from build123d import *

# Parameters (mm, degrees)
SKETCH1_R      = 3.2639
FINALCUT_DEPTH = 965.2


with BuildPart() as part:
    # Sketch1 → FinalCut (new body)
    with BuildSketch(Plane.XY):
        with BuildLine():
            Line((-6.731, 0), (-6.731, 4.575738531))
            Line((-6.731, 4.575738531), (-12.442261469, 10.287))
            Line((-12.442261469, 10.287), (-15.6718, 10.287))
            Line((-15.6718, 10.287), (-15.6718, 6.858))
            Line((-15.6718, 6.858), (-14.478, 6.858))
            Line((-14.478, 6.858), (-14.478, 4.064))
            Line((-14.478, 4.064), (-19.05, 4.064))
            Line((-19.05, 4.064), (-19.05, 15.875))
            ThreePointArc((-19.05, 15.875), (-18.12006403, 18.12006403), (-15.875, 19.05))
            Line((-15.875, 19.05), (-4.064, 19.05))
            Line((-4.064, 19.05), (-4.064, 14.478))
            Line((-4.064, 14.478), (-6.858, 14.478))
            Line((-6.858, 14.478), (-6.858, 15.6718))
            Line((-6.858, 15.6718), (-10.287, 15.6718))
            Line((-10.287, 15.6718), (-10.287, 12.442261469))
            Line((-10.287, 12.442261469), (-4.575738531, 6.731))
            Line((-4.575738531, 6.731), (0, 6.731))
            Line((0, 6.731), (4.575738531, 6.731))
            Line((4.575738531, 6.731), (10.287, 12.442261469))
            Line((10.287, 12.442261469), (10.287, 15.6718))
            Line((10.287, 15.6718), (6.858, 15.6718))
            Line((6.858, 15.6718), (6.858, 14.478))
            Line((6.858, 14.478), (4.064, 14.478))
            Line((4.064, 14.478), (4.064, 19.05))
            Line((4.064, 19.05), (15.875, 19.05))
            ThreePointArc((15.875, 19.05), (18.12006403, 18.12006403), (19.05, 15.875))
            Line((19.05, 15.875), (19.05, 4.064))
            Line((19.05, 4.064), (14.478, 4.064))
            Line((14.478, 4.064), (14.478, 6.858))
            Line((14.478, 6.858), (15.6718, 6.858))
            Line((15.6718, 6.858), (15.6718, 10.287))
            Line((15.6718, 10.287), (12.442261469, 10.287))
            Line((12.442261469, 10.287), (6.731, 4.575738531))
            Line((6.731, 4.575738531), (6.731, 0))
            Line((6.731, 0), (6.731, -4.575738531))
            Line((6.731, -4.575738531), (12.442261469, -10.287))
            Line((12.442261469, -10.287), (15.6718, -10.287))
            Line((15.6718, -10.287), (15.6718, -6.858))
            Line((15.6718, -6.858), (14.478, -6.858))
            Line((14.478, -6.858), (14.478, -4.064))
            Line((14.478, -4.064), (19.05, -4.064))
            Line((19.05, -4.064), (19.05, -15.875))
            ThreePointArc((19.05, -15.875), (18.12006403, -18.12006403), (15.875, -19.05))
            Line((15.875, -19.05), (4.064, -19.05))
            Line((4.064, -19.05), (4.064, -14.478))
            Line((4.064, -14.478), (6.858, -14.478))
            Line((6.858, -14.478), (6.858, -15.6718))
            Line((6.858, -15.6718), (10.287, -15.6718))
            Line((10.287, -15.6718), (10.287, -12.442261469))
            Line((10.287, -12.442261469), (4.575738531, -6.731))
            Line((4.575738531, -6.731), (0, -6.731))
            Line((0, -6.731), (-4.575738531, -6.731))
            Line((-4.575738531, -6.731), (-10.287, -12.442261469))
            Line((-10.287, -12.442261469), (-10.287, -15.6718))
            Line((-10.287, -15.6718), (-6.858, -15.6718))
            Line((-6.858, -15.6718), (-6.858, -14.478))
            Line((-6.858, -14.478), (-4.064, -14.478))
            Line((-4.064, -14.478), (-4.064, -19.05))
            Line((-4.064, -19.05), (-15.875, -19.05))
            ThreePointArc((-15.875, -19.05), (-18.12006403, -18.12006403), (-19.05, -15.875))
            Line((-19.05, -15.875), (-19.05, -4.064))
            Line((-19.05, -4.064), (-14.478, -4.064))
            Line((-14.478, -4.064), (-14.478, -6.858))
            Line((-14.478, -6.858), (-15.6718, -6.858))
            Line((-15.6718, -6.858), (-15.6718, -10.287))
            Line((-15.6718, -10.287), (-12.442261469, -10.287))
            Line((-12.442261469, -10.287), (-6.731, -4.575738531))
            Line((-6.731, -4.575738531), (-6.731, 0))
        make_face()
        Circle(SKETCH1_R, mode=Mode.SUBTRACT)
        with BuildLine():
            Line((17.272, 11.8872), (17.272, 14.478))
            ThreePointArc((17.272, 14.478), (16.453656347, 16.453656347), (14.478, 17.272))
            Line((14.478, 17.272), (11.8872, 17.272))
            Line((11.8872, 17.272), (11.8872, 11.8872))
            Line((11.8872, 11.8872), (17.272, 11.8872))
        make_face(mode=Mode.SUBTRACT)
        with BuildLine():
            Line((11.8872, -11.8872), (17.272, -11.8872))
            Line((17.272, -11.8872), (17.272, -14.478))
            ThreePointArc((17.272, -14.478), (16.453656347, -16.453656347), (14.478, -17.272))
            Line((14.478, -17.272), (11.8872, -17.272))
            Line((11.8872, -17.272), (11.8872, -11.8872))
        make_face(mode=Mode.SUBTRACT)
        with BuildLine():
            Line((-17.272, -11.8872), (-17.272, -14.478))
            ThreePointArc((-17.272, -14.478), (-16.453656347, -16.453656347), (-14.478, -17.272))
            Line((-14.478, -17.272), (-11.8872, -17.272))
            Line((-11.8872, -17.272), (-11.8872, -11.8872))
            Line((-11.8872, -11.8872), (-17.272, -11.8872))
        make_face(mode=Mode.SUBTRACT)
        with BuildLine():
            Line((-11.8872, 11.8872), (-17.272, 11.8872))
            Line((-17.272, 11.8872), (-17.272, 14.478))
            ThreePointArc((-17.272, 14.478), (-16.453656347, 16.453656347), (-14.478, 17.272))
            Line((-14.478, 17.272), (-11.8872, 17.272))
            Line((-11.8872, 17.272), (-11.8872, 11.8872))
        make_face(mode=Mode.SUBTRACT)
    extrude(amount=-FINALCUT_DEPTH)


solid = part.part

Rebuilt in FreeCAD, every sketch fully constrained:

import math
import FreeCAD as App
import Part
import Sketcher

V = App.Vector
Q = App.Units.Quantity

doc = App.newDocument("Part")
body = doc.addObject("PartDesign::Body", "Body")

# Sketch on XY plane
sketch1 = body.newObject("Sketcher::SketchObject", "Sketch")
sketch1.AttachmentSupport = (doc.getObject("XY_Plane"), [""])
sketch1.MapMode = "FlatFace"
sketch1.addGeometry([
    Part.LineSegment(V(-12.4, 10.3, 0), V(-6.7, 4.6, 0)),  # 0
    Part.LineSegment(V(-6.7, 4.6, 0), V(-6.7, -4.6, 0)),  # 1
    Part.LineSegment(V(-6.7, -4.6, 0), V(-12.4, -10.3, 0)),  # 2
    Part.LineSegment(V(-12.4, -10.3, 0), V(-15.7, -10.3, 0)),  # 3
    Part.LineSegment(V(-15.7, -10.3, 0), V(-15.7, -6.9, 0)),  # 4
    Part.LineSegment(V(-15.7, -6.9, 0), V(-14.5, -6.9, 0)),  # 5
    Part.LineSegment(V(-14.5, -6.9, 0), V(-14.5, -4.1, 0)),  # 6
    Part.LineSegment(V(-14.5, -4.1, 0), V(-19.1, -4.1, 0)),  # 7
    Part.LineSegment(V(-19.1, -4.1, 0), V(-19.1, -15.9, 0)),  # 8
    Part.ArcOfCircle(Part.Circle(V(-15.9, -15.9, 0), V(0, 0, 1), 3.2), math.radians(-180), math.radians(-90)),  # 9
    Part.LineSegment(V(-15.9, -19.1, 0), V(-4.1, -19.1, 0)),  # 10
    Part.LineSegment(V(-4.1, -19.1, 0), V(-4.1, -14.5, 0)),  # 11
    Part.LineSegment(V(-4.1, -14.5, 0), V(-6.9, -14.5, 0)),  # 12
    Part.LineSegment(V(-6.9, -14.5, 0), V(-6.9, -15.7, 0)),  # 13
    Part.LineSegment(V(-6.9, -15.7, 0), V(-10.3, -15.7, 0)),  # 14
    Part.LineSegment(V(-10.3, -15.7, 0), V(-10.3, -12.4, 0)),  # 15
    Part.LineSegment(V(-10.3, -12.4, 0), V(-4.6, -6.7, 0)),  # 16
    Part.LineSegment(V(-4.6, -6.7, 0), V(4.6, -6.7, 0)),  # 17
    Part.LineSegment(V(4.6, -6.7, 0), V(10.3, -12.4, 0)),  # 18
    Part.LineSegment(V(10.3, -12.4, 0), V(10.3, -15.7, 0)),  # 19
    Part.LineSegment(V(10.3, -15.7, 0), V(6.9, -15.7, 0)),  # 20
    Part.LineSegment(V(6.9, -15.7, 0), V(6.9, -14.5, 0)),  # 21
    Part.LineSegment(V(6.9, -14.5, 0), V(4.1, -14.5, 0)),  # 22
    Part.LineSegment(V(4.1, -14.5, 0), V(4.1, -19.1, 0)),  # 23
    Part.LineSegment(V(4.1, -19.1, 0), V(15.9, -19.1, 0)),  # 24
    Part.ArcOfCircle(Part.Circle(V(15.9, -15.9, 0), V(0, 0, 1), 3.2), math.radians(-90), math.radians(0)),  # 25
    Part.LineSegment(V(19.1, -15.9, 0), V(19.1, -4.1, 0)),  # 26
    Part.LineSegment(V(19.1, -4.1, 0), V(14.5, -4.1, 0)),  # 27
    Part.LineSegment(V(14.5, -4.1, 0), V(14.5, -6.9, 0)),  # 28
    Part.LineSegment(V(14.5, -6.9, 0), V(15.7, -6.9, 0)),  # 29
    Part.LineSegment(V(15.7, -6.9, 0), V(15.7, -10.3, 0)),  # 30
    Part.LineSegment(V(15.7, -10.3, 0), V(12.4, -10.3, 0)),  # 31
    Part.LineSegment(V(12.4, -10.3, 0), V(6.7, -4.6, 0)),  # 32
    Part.LineSegment(V(6.7, -4.6, 0), V(6.7, 4.6, 0)),  # 33
    Part.LineSegment(V(6.7, 4.6, 0), V(12.4, 10.3, 0)),  # 34
    Part.LineSegment(V(12.4, 10.3, 0), V(15.7, 10.3, 0)),  # 35
    Part.LineSegment(V(15.7, 10.3, 0), V(15.7, 6.9, 0)),  # 36
    Part.LineSegment(V(15.7, 6.9, 0), V(14.5, 6.9, 0)),  # 37
    Part.LineSegment(V(14.5, 6.9, 0), V(14.5, 4.1, 0)),  # 38
    Part.LineSegment(V(14.5, 4.1, 0), V(19.1, 4.1, 0)),  # 39
    Part.LineSegment(V(19.1, 4.1, 0), V(19.1, 15.9, 0)),  # 40
    Part.ArcOfCircle(Part.Circle(V(15.9, 15.9, 0), V(0, 0, 1), 3.2), math.radians(0), math.radians(90)),  # 41
    Part.LineSegment(V(15.9, 19.1, 0), V(4.1, 19.1, 0)),  # 42
    Part.LineSegment(V(4.1, 19.1, 0), V(4.1, 14.5, 0)),  # 43
    Part.LineSegment(V(4.1, 14.5, 0), V(6.9, 14.5, 0)),  # 44
    Part.LineSegment(V(6.9, 14.5, 0), V(6.9, 15.7, 0)),  # 45
    Part.LineSegment(V(6.9, 15.7, 0), V(10.3, 15.7, 0)),  # 46
    Part.LineSegment(V(10.3, 15.7, 0), V(10.3, 12.4, 0)),  # 47
    Part.LineSegment(V(10.3, 12.4, 0), V(4.6, 6.7, 0)),  # 48
    Part.LineSegment(V(4.6, 6.7, 0), V(-4.6, 6.7, 0)),  # 49
    Part.LineSegment(V(-4.6, 6.7, 0), V(-10.3, 12.4, 0)),  # 50
    Part.LineSegment(V(-10.3, 12.4, 0), V(-10.3, 15.7, 0)),  # 51
    Part.LineSegment(V(-10.3, 15.7, 0), V(-6.9, 15.7, 0)),  # 52
    Part.LineSegment(V(-6.9, 15.7, 0), V(-6.9, 14.5, 0)),  # 53
    Part.LineSegment(V(-6.9, 14.5, 0), V(-4.1, 14.5, 0)),  # 54
    Part.LineSegment(V(-4.1, 14.5, 0), V(-4.1, 19.1, 0)),  # 55
    Part.LineSegment(V(-4.1, 19.1, 0), V(-15.9, 19.1, 0)),  # 56
    Part.ArcOfCircle(Part.Circle(V(-15.9, 15.9, 0), V(0, 0, 1), 3.2), math.radians(90), math.radians(180)),  # 57
    Part.LineSegment(V(-19.1, 15.9, 0), V(-19.1, 4.1, 0)),  # 58
    Part.LineSegment(V(-19.1, 4.1, 0), V(-14.5, 4.1, 0)),  # 59
    Part.LineSegment(V(-14.5, 4.1, 0), V(-14.5, 6.9, 0)),  # 60
    Part.LineSegment(V(-14.5, 6.9, 0), V(-15.7, 6.9, 0)),  # 61
    Part.LineSegment(V(-15.7, 6.9, 0), V(-15.7, 10.3, 0)),  # 62
    Part.LineSegment(V(-15.7, 10.3, 0), V(-12.4, 10.3, 0)),  # 63
    Part.LineSegment(V(11.9, -11.9, 0), V(17.3, -11.9, 0)),  # 64
    Part.LineSegment(V(17.3, -11.9, 0), V(17.3, -14.5, 0)),  # 65
    Part.ArcOfCircle(Part.Circle(V(14.5, -14.5, 0), V(0, 0, 1), 2.8), math.radians(-90), math.radians(0)),  # 66
    Part.LineSegment(V(14.5, -17.3, 0), V(11.9, -17.3, 0)),  # 67
    Part.LineSegment(V(11.9, -17.3, 0), V(11.9, -11.9, 0)),  # 68
    Part.LineSegment(V(-17.3, -11.9, 0), V(-11.9, -11.9, 0)),  # 69
    Part.LineSegment(V(-11.9, -11.9, 0), V(-11.9, -17.3, 0)),  # 70
    Part.LineSegment(V(-11.9, -17.3, 0), V(-14.5, -17.3, 0)),  # 71
    Part.ArcOfCircle(Part.Circle(V(-14.5, -14.5, 0), V(0, 0, 1), 2.8), math.radians(180), math.radians(270)),  # 72
    Part.LineSegment(V(-17.3, -14.5, 0), V(-17.3, -11.9, 0)),  # 73
    Part.LineSegment(V(17.3, 11.9, 0), V(11.9, 11.9, 0)),  # 74
    Part.LineSegment(V(11.9, 11.9, 0), V(11.9, 17.3, 0)),  # 75
    Part.LineSegment(V(11.9, 17.3, 0), V(14.5, 17.3, 0)),  # 76
    Part.ArcOfCircle(Part.Circle(V(14.5, 14.5, 0), V(0, 0, 1), 2.8), math.radians(0), math.radians(90)),  # 77
    Part.LineSegment(V(17.3, 14.5, 0), V(17.3, 11.9, 0)),  # 78
    Part.Circle(V(0, 0, 0), V(0, 0, 1), 3.3),  # 79
    Part.LineSegment(V(-11.9, 11.9, 0), V(-17.3, 11.9, 0)),  # 80
    Part.LineSegment(V(-17.3, 11.9, 0), V(-17.3, 14.5, 0)),  # 81
    Part.ArcOfCircle(Part.Circle(V(-14.5, 14.5, 0), V(0, 0, 1), 2.8), math.radians(90), math.radians(180)),  # 82
    Part.LineSegment(V(-14.5, 17.3, 0), V(-11.9, 17.3, 0)),  # 83
    Part.LineSegment(V(-11.9, 17.3, 0), V(-11.9, 11.9, 0)),  # 84
], False)
sketch1.addConstraint([
    Sketcher.Constraint("Coincident", 0, 2, 1, 1),
    Sketcher.Constraint("Coincident", 1, 2, 2, 1),
    Sketcher.Constraint("Coincident", 2, 2, 3, 1),
    Sketcher.Constraint("Coincident", 3, 2, 4, 1),
    Sketcher.Constraint("Coincident", 4, 2, 5, 1),
    Sketcher.Constraint("Coincident", 5, 2, 6, 1),
    Sketcher.Constraint("Coincident", 6, 2, 7, 1),
    Sketcher.Constraint("Coincident", 7, 2, 8, 1),
    Sketcher.Constraint("Tangent", 8, 2, 9, 1),
    Sketcher.Constraint("Tangent", 9, 2, 10, 1),
    Sketcher.Constraint("Coincident", 10, 2, 11, 1),
    Sketcher.Constraint("Coincident", 11, 2, 12, 1),
    Sketcher.Constraint("Coincident", 12, 2, 13, 1),
    Sketcher.Constraint("Coincident", 13, 2, 14, 1),
    Sketcher.Constraint("Coincident", 14, 2, 15, 1),
    Sketcher.Constraint("Coincident", 15, 2, 16, 1),
    Sketcher.Constraint("Coincident", 16, 2, 17, 1),
    Sketcher.Constraint("Coincident", 17, 2, 18, 1),
    Sketcher.Constraint("Coincident", 18, 2, 19, 1),
    Sketcher.Constraint("Coincident", 19, 2, 20, 1),
    Sketcher.Constraint("Coincident", 20, 2, 21, 1),
    Sketcher.Constraint("Coincident", 21, 2, 22, 1),
    Sketcher.Constraint("Coincident", 22, 2, 23, 1),
    Sketcher.Constraint("Coincident", 23, 2, 24, 1),
    Sketcher.Constraint("Tangent", 24, 2, 25, 1),
    Sketcher.Constraint("Tangent", 25, 2, 26, 1),
    Sketcher.Constraint("Coincident", 26, 2, 27, 1),
    Sketcher.Constraint("Coincident", 27, 2, 28, 1),
    Sketcher.Constraint("Coincident", 28, 2, 29, 1),
    Sketcher.Constraint("Coincident", 29, 2, 30, 1),
    Sketcher.Constraint("Coincident", 30, 2, 31, 1),
    Sketcher.Constraint("Coincident", 31, 2, 32, 1),
    Sketcher.Constraint("Coincident", 32, 2, 33, 1),
    Sketcher.Constraint("Coincident", 33, 2, 34, 1),
    Sketcher.Constraint("Coincident", 34, 2, 35, 1),
    Sketcher.Constraint("Coincident", 35, 2, 36, 1),
    Sketcher.Constraint("Coincident", 36, 2, 37, 1),
    Sketcher.Constraint("Coincident", 37, 2, 38, 1),
    Sketcher.Constraint("Coincident", 38, 2, 39, 1),
    Sketcher.Constraint("Coincident", 39, 2, 40, 1),
    Sketcher.Constraint("Tangent", 40, 2, 41, 1),
    Sketcher.Constraint("Tangent", 41, 2, 42, 1),
    Sketcher.Constraint("Coincident", 42, 2, 43, 1),
    Sketcher.Constraint("Coincident", 43, 2, 44, 1),
    Sketcher.Constraint("Coincident", 44, 2, 45, 1),
    Sketcher.Constraint("Coincident", 45, 2, 46, 1),
    Sketcher.Constraint("Coincident", 46, 2, 47, 1),
    Sketcher.Constraint("Coincident", 47, 2, 48, 1),
    Sketcher.Constraint("Coincident", 48, 2, 49, 1),
    Sketcher.Constraint("Coincident", 49, 2, 50, 1),
    Sketcher.Constraint("Coincident", 50, 2, 51, 1),
    Sketcher.Constraint("Coincident", 51, 2, 52, 1),
    Sketcher.Constraint("Coincident", 52, 2, 53, 1),
    Sketcher.Constraint("Coincident", 53, 2, 54, 1),
    Sketcher.Constraint("Coincident", 54, 2, 55, 1),
    Sketcher.Constraint("Coincident", 55, 2, 56, 1),
    Sketcher.Constraint("Tangent", 56, 2, 57, 1),
    Sketcher.Constraint("Tangent", 57, 2, 58, 1),
    Sketcher.Constraint("Coincident", 58, 2, 59, 1),
    Sketcher.Constraint("Coincident", 59, 2, 60, 1),
    Sketcher.Constraint("Coincident", 60, 2, 61, 1),
    Sketcher.Constraint("Coincident", 61, 2, 62, 1),
    Sketcher.Constraint("Coincident", 62, 2, 63, 1),
    Sketcher.Constraint("Coincident", 63, 2, 0, 1),
    Sketcher.Constraint("Coincident", 64, 2, 65, 1),
    Sketcher.Constraint("Tangent", 65, 2, 66, 2),
    Sketcher.Constraint("Tangent", 66, 1, 67, 1),
    Sketcher.Constraint("Coincident", 67, 2, 68, 1),
    Sketcher.Constraint("Coincident", 68, 2, 64, 1),
    Sketcher.Constraint("Coincident", 69, 2, 70, 1),
    Sketcher.Constraint("Coincident", 70, 2, 71, 1),
    Sketcher.Constraint("Tangent", 71, 2, 72, 2),
    Sketcher.Constraint("Tangent", 72, 1, 73, 1),
    Sketcher.Constraint("Coincident", 73, 2, 69, 1),
    Sketcher.Constraint("Coincident", 74, 2, 75, 1),
    Sketcher.Constraint("Coincident", 75, 2, 76, 1),
    Sketcher.Constraint("Tangent", 76, 2, 77, 2),
    Sketcher.Constraint("Tangent", 77, 1, 78, 1),
    Sketcher.Constraint("Coincident", 78, 2, 74, 1),
    Sketcher.Constraint("Coincident", 80, 2, 81, 1),
    Sketcher.Constraint("Tangent", 81, 2, 82, 2),
    Sketcher.Constraint("Tangent", 82, 1, 83, 1),
    Sketcher.Constraint("Coincident", 83, 2, 84, 1),
    Sketcher.Constraint("Coincident", 84, 2, 80, 1),
    Sketcher.Constraint("Vertical", 1),
    Sketcher.Constraint("Horizontal", 3),
    Sketcher.Constraint("Vertical", 4),
    Sketcher.Constraint("Horizontal", 5),
    Sketcher.Constraint("Vertical", 6),
    Sketcher.Constraint("Horizontal", 7),
    Sketcher.Constraint("Vertical", 8),
    Sketcher.Constraint("Horizontal", 10),
    Sketcher.Constraint("Vertical", 11),
    Sketcher.Constraint("Horizontal", 12),
    Sketcher.Constraint("Vertical", 13),
    Sketcher.Constraint("Horizontal", 14),
    Sketcher.Constraint("Vertical", 15),
    Sketcher.Constraint("Horizontal", 17),
    Sketcher.Constraint("Vertical", 19),
    Sketcher.Constraint("Horizontal", 20),
    Sketcher.Constraint("Vertical", 21),
    Sketcher.Constraint("Horizontal", 22),
    Sketcher.Constraint("Vertical", 23),
    Sketcher.Constraint("Horizontal", 24),
    Sketcher.Constraint("Vertical", 26),
    Sketcher.Constraint("Horizontal", 27),
    Sketcher.Constraint("Vertical", 28),
    Sketcher.Constraint("Horizontal", 29),
    Sketcher.Constraint("Vertical", 30),
    Sketcher.Constraint("Horizontal", 31),
    Sketcher.Constraint("Vertical", 33),
    Sketcher.Constraint("Horizontal", 35),
    Sketcher.Constraint("Vertical", 36),
    Sketcher.Constraint("Horizontal", 37),
    Sketcher.Constraint("Vertical", 38),
    Sketcher.Constraint("Horizontal", 39),
    Sketcher.Constraint("Vertical", 40),
    Sketcher.Constraint("Horizontal", 42),
    Sketcher.Constraint("Vertical", 43),
    Sketcher.Constraint("Horizontal", 44),
    Sketcher.Constraint("Vertical", 45),
    Sketcher.Constraint("Horizontal", 46),
    Sketcher.Constraint("Vertical", 47),
    Sketcher.Constraint("Horizontal", 49),
    Sketcher.Constraint("Vertical", 51),
    Sketcher.Constraint("Horizontal", 52),
    Sketcher.Constraint("Vertical", 53),
    Sketcher.Constraint("Horizontal", 54),
    Sketcher.Constraint("Vertical", 55),
    Sketcher.Constraint("Horizontal", 56),
    Sketcher.Constraint("Vertical", 58),
    Sketcher.Constraint("Horizontal", 59),
    Sketcher.Constraint("Vertical", 60),
    Sketcher.Constraint("Horizontal", 61),
    Sketcher.Constraint("Vertical", 62),
    Sketcher.Constraint("Horizontal", 63),
    Sketcher.Constraint("Horizontal", 64),
    Sketcher.Constraint("Vertical", 65),
    Sketcher.Constraint("Horizontal", 67),
    Sketcher.Constraint("Vertical", 68),
    Sketcher.Constraint("Horizontal", 69),
    Sketcher.Constraint("Vertical", 70),
    Sketcher.Constraint("Horizontal", 71),
    Sketcher.Constraint("Vertical", 73),
    Sketcher.Constraint("Horizontal", 74),
    Sketcher.Constraint("Vertical", 75),
    Sketcher.Constraint("Horizontal", 76),
    Sketcher.Constraint("Vertical", 78),
    Sketcher.Constraint("Horizontal", 80),
    Sketcher.Constraint("Vertical", 81),
    Sketcher.Constraint("Horizontal", 83),
    Sketcher.Constraint("Vertical", 84),
    Sketcher.Constraint("Coincident", 79, 3, -1, 1),
    Sketcher.Constraint("Equal", 9, 25),
    Sketcher.Constraint("Equal", 25, 41),
    Sketcher.Constraint("Equal", 41, 57),
    Sketcher.Constraint("Equal", 66, 72),
    Sketcher.Constraint("Equal", 72, 77),
    Sketcher.Constraint("Equal", 77, 82),
    Sketcher.Constraint("Symmetric", 9, 3, 41, 3, -1, 1),
    Sketcher.Constraint("Symmetric", 25, 3, 57, 3, -1, 1),
    Sketcher.Constraint("Symmetric", 72, 3, 77, 3, -1, 1),
    Sketcher.Constraint("Symmetric", 66, 3, 82, 3, -1, 1),
    Sketcher.Constraint("Symmetric", 0, 2, 32, 2, -1, 1),
    Sketcher.Constraint("Symmetric", 2, 2, 34, 2, -1, 1),
    Sketcher.Constraint("Symmetric", 4, 2, 36, 2, -1, 1),
    Sketcher.Constraint("Symmetric", 6, 2, 38, 2, -1, 1),
    Sketcher.Constraint("Symmetric", 11, 2, 43, 2, -1, 1),
    Sketcher.Constraint("Symmetric", 13, 2, 45, 2, -1, 1),
    Sketcher.Constraint("Symmetric", 15, 2, 47, 2, -1, 1),
    Sketcher.Constraint("Symmetric", 16, 2, 48, 2, -1, 1),
    Sketcher.Constraint("Symmetric", 18, 2, 50, 2, -1, 1),
    Sketcher.Constraint("Symmetric", 20, 2, 52, 2, -1, 1),
    Sketcher.Constraint("Symmetric", 22, 2, 54, 2, -1, 1),
    Sketcher.Constraint("Symmetric", 27, 2, 59, 2, -1, 1),
    Sketcher.Constraint("Symmetric", 29, 2, 61, 2, -1, 1),
    Sketcher.Constraint("Symmetric", 31, 2, 63, 2, -1, 1),
    Sketcher.Constraint("Symmetric", 69, 2, 74, 2, -1, 1),
    Sketcher.Constraint("Symmetric", 68, 2, 84, 2, -1, 1),
    Sketcher.Constraint("Symmetric", 9, 3, 25, 3, -2),
    Sketcher.Constraint("Symmetric", 66, 3, 72, 3, -2),
    Sketcher.Constraint("Symmetric", 15, 2, 18, 2, -2),
    Sketcher.Constraint("Symmetric", 13, 2, 20, 2, -2),
    Sketcher.Constraint("Symmetric", 11, 2, 22, 2, -2),
    Sketcher.Constraint("Symmetric", 6, 2, 27, 2, -2),
    Sketcher.Constraint("Symmetric", 4, 2, 29, 2, -2),
    Sketcher.Constraint("Symmetric", 2, 2, 31, 2, -2),
    Sketcher.Constraint("Symmetric", 68, 2, 69, 2, -2),
    Sketcher.Constraint("Perpendicular", 0, 2),
    Sketcher.Constraint("Parallel", 2, 16),
    Sketcher.Constraint("Perpendicular", 16, 18),
    Sketcher.Constraint("Perpendicular", 32, 34),
    Sketcher.Constraint("Perpendicular", 48, 50),
    Sketcher.Constraint("Horizontal", 72, 3, 11, 2),
    Sketcher.Constraint("Horizontal", 1, 2, 32, 2),
    Sketcher.Constraint("Vertical", 82, 3, 5, 2),
    Sketcher.Constraint("Equal", 49, 1),
    Sketcher.Constraint("Equal", 52, 4),
    Sketcher.Constraint("Equal", 54, 6),
    Sketcher.Constraint("Equal", 56, 8),
    Sketcher.Constraint("Equal", 59, 11),
    Sketcher.Constraint("Equal", 61, 13),
    Sketcher.Constraint("Equal", 63, 15),
    Sketcher.Constraint("Equal", 83, 65),
    Sketcher.Constraint("Equal", 2, 16),
    Sketcher.Constraint("Radius", 66, Q("0.11 in")),
    Sketcher.Constraint("Diameter", 79, Q("0.257 in")),
    Sketcher.Constraint("Radius", 9, Q("0.125 in")),
    Sketcher.Constraint("DistanceX", 7, 2, 7, 1, Q("0.18 in")),
    Sketcher.Constraint("DistanceX", 12, 2, 12, 1, Q("0.11 in")),
    Sketcher.Constraint("DistanceX", 5, 1, 5, 2, Q("0.047 in")),
    Sketcher.Constraint("DistanceX", 10, 1, 10, 2, Q("0.465 in")),
    Sketcher.Constraint("DistanceX", 14, 2, 14, 1, Q("0.135 in")),
    Sketcher.Constraint("DistanceX", 64, 1, 64, 2, Q("0.212 in")),
    Sketcher.Constraint("DistanceX", -1, 1, 66, 3, Q("0.57 in")),
    Sketcher.Constraint("DistanceX", 0, 2, -1, 1, Q("0.265 in")),
    Sketcher.Constraint("DistanceX", 3, 2, 3, 1, Q("3.229539 mm")),
])
pad1 = body.newObject("PartDesign::Pad", "Pad")
pad1.Profile = sketch1
pad1.Length = Q("38 in")
pad1.Reversed = True

doc.recompute()
